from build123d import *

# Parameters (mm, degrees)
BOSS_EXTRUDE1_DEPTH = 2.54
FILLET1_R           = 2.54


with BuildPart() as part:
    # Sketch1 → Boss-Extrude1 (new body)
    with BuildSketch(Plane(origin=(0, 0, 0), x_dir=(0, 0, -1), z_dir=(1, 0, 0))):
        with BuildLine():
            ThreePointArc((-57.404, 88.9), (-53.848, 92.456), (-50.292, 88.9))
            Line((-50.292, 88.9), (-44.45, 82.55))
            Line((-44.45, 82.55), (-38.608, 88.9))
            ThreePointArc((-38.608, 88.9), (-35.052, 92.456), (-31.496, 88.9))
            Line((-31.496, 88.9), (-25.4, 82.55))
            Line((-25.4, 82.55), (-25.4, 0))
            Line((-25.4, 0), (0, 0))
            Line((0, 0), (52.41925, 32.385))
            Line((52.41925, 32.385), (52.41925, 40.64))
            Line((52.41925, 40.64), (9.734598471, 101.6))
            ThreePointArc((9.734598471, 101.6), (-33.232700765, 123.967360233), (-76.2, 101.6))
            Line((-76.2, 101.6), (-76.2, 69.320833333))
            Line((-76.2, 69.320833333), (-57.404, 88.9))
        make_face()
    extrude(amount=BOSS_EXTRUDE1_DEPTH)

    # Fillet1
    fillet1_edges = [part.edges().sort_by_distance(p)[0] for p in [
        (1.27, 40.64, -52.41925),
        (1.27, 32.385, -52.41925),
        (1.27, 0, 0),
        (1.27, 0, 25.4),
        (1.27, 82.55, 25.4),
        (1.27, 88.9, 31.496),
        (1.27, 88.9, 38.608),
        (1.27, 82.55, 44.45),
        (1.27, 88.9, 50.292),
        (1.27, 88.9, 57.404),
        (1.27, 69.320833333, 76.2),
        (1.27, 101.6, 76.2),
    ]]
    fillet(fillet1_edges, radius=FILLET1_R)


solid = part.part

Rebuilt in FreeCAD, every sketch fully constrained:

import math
import FreeCAD as App
import Part
import Sketcher

V = App.Vector
Q = App.Units.Quantity


def edges_at(feature, points):
    """Names of the edges that pass closest to the given points."""
    edges = feature.Shape.Edges
    near = lambda p: min(range(len(edges)), key=lambda i: edges[i].distToShape(Part.Vertex(*p))[0])
    return sorted({f"Edge{near(p) + 1}" for p in points})

doc = App.newDocument("Part")
body = doc.addObject("PartDesign::Body", "Body")

# Sketch on YZ plane
sketch1 = doc.addObject("Sketcher::SketchObject", "Sketch")
body.addObject(sketch1)
sketch1.AttachmentSupport = (doc.YZ_Plane, [""])
sketch1.MapMode = "FlatFace"
sketch1.addGeometry([
    Part.ArcOfCircle(Part.Circle(V(88.9, 53.8, 0), V(0, 0, 1), 3.6), math.radians(-90), math.radians(90)),  # 0
    Part.LineSegment(V(88.9, 50.3, 0), V(82.5, 44.5, 0)),  # 1
    Part.LineSegment(V(82.5, 44.5, 0), V(88.9, 38.6, 0)),  # 2
    Part.ArcOfCircle(Part.Circle(V(88.9, 35.1, 0), V(0, 0, 1), 3.6), math.radians(-90), math.radians(90)),  # 3
    Part.LineSegment(V(88.9, 31.5, 0), V(82.5, 25.4, 0)),  # 4
    Part.LineSegment(V(82.5, 25.4, 0), V(0, 25.4, 0)),  # 5
    Part.LineSegment(V(0, 25.4, 0), V(0, 0, 0)),  # 6
    Part.LineSegment(V(0, 0, 0), V(32.4, -52.4, 0)),  # 7
    Part.LineSegment(V(32.4, -52.4, 0), V(40.6, -52.4, 0)),  # 8
    Part.LineSegment(V(40.6, -52.4, 0), V(101.6, -9.7, 0)),  # 9
    Part.ArcOfCircle(Part.Circle(V(71.5, 33.2, 0), V(0, 0, 1), 52.5), math.radians(-55), math.radians(55)),  # 10
    Part.LineSegment(V(101.6, 76.2, 0), V(69.3, 76.2, 0)),  # 11
    Part.LineSegment(V(69.3, 76.2, 0), V(88.9, 57.4, 0)),  # 12
], False)
sketch1.addConstraint([
    Sketcher.Constraint("Coincident", 0, 1, 1, 1),
    Sketcher.Constraint("Coincident", 1, 2, 2, 1),
    Sketcher.Constraint("Coincident", 2, 2, 3, 2),
    Sketcher.Constraint("Coincident", 3, 1, 4, 1),
    Sketcher.Constraint("Coincident", 4, 2, 5, 1),
    Sketcher.Constraint("Coincident", 5, 2, 6, 1),
    Sketcher.Constraint("Coincident", 6, 2, 7, 1),
    Sketcher.Constraint("Coincident", 7, 2, 8, 1),
    Sketcher.Constraint("Coincident", 8, 2, 9, 1),
    Sketcher.Constraint("Tangent", 9, 2, 10, 1),
    Sketcher.Constraint("Coincident", 10, 2, 11, 1),
    Sketcher.Constraint("Coincident", 11, 2, 12, 1),
    Sketcher.Constraint("Coincident", 12, 2, 0, 2),
    Sketcher.Constraint("Horizontal", 5),
    Sketcher.Constraint("Vertical", 6),
    Sketcher.Constraint("Horizontal", 8),
    Sketcher.Constraint("Horizontal", 11),
    Sketcher.Constraint("Coincident", 6, 2, -1, 1),
    Sketcher.Constraint("Equal", 0, 3),
    Sketcher.Constraint("Vertical", 0, 3, 3, 3),
    Sketcher.Constraint("Vertical", 3, 3, 0, 1),
    Sketcher.Constraint("Vertical", 0, 1, 2, 2),
    Sketcher.Constraint("Vertical", 2, 2, 3, 1),
    Sketcher.Constraint("Vertical", 1, 2, 4, 2),
    Sketcher.Constraint("Vertical", 9, 2, 10, 2),
    Sketcher.Constraint("Vertical", 3, 1, 12, 2),
    Sketcher.Constraint("Equal", 1, 2),
    Sketcher.Constraint("DistanceY", 6, 2, 6, 1, Q("1 in")),
    Sketcher.Constraint("Radius", 0, Q("0.14 in")),
    Sketcher.Constraint("DistanceX", -1, 1, 9, 2, Q("4 in")),
    Sketcher.Constraint("DistanceY", -1, 1, 10, 2, Q("3 in")),
    Sketcher.Constraint("Angle", 9, Q("35 deg")),
    Sketcher.Constraint("DistanceX", 5, 2, 5, 1, Q("3.25 in")),
    Sketcher.Constraint("DistanceX", -1, 1, 0, 3, Q("3.5 in")),
    Sketcher.Constraint("DistanceX", -1, 1, 8, 2, Q("1.6 in")),
    Sketcher.Constraint("DistanceY", 3, 3, 0, 1, Q("0.6 in")),
    Sketcher.Constraint("DistanceX", 8, 1, 8, 2, Q("0.325 in")),
    Sketcher.Constraint("DistanceY", -1, 1, 0, 3, Q("2.12 in")),
    Sketcher.Constraint("Radius", 10, 52.453387),
    Sketcher.Constraint("Distance", 12, 27.140991),
])
pad1 = doc.addObject("PartDesign::Pad", "Pad")
body.addObject(pad1)
pad1.Profile = sketch1
pad1.Length = Q("0.1 in")
doc.recompute()

fillet = doc.addObject("PartDesign::Fillet", "Fillet")
body.addObject(fillet)
fillet.Base = (pad1, edges_at(pad1, [
    (1.27, 40.64, -52.419),
    (1.27, 32.385, -52.419),
    (1.27, 0, 0),
    (1.27, 0, 25.4),
    (1.27, 82.55, 25.4),
    (1.27, 88.9, 31.496),
    (1.27, 88.9, 38.608),
    (1.27, 82.55, 44.45),
    (1.27, 88.9, 50.292),
    (1.27, 88.9, 57.404),
    (1.27, 69.321, 76.2),
    (1.27, 101.6, 76.2),
]))
fillet.Radius = Q("0.1 in")

doc.recompute()
